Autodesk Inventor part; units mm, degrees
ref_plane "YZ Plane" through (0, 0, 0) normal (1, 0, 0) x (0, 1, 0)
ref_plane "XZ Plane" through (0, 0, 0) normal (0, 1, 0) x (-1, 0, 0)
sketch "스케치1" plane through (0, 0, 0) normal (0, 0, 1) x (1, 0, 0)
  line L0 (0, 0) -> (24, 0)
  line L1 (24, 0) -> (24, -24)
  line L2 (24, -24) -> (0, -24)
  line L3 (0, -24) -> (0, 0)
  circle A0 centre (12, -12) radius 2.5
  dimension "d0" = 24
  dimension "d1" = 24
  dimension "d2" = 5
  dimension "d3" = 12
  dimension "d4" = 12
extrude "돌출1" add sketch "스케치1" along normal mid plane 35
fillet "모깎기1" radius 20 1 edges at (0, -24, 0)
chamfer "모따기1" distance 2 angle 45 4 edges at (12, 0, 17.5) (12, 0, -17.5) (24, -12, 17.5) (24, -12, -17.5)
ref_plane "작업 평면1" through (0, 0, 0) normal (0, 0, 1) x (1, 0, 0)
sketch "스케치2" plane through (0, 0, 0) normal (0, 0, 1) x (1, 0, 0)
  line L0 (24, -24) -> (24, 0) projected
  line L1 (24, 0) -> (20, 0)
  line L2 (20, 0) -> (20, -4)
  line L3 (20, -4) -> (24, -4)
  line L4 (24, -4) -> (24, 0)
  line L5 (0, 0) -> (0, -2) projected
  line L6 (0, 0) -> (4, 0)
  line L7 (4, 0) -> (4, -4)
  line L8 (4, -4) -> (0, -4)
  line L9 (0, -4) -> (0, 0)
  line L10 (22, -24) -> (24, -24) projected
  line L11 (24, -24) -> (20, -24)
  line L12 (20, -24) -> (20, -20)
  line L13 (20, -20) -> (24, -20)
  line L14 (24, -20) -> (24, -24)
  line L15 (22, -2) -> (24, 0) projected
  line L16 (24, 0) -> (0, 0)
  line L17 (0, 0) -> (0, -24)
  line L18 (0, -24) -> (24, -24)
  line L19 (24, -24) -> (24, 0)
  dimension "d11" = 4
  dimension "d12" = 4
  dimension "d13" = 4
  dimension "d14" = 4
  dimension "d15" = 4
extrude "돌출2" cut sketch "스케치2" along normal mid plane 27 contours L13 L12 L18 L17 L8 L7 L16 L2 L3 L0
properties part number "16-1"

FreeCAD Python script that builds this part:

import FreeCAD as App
import Part
import Sketcher
from FreeCAD import Vector
Q = App.Units.Quantity


def edges_at(feature, points):
    """Names of the edges that pass closest to the given points."""
    edges = feature.Shape.Edges
    near = lambda p: min(range(len(edges)), key=lambda i: edges[i].distToShape(Part.Vertex(*p))[0])
    return sorted({f"Edge{near(p) + 1}" for p in points})

doc = App.newDocument("Part")
body = doc.addObject("PartDesign::Body", "Body")

sketch1 = body.newObject("Sketcher::SketchObject", "Sketch")
sketch1.AttachmentSupport = (doc.getObject("XY_Plane"), [""])
sketch1.MapMode = "FlatFace"
sketch1.addGeometry([
    Part.LineSegment(Vector(24, 0, 0), Vector(0, 0, 0)),
    Part.LineSegment(Vector(0, 0, 0), Vector(0, -24, 0)),
    Part.LineSegment(Vector(0, -24, 0), Vector(24, -24, 0)),
    Part.LineSegment(Vector(24, -24, 0), Vector(24, 0, 0)),
    Part.Circle(Vector(12, -12, 0), Vector(0, 0, 1), 2.5),
], False)
sketch1.addConstraint([
    Sketcher.Constraint("Coincident", 0, 2, 1, 1),
    Sketcher.Constraint("Coincident", 1, 2, 2, 1),
    Sketcher.Constraint("Coincident", 2, 2, 3, 1),
    Sketcher.Constraint("Coincident", 3, 2, 0, 1),
    Sketcher.Constraint("Horizontal", 0),
    Sketcher.Constraint("Vertical", 1),
    Sketcher.Constraint("Horizontal", 2),
    Sketcher.Constraint("Vertical", 3),
    Sketcher.Constraint("Coincident", 0, 2, -1, 1),
    Sketcher.Constraint("Equal", 2, 1),
    Sketcher.Constraint("Diameter", 4, Q("5 mm")),
    Sketcher.Constraint("DistanceX", 0, 2, 0, 1, Q("24 mm")),
    Sketcher.Constraint("DistanceX", -1, 1, 4, 3, Q("12 mm")),
    Sketcher.Constraint("DistanceY", 4, 3, -1, 1, Q("12 mm")),
])
pad1 = body.newObject("PartDesign::Pad", "Pad")
pad1.Profile = sketch1
pad1.Length = 35
pad1.Midplane = True
doc.recompute()

fillet = body.newObject("PartDesign::Fillet", "Fillet")
fillet.Base = (pad1, edges_at(pad1, [(0, -24, 0)]))
fillet.Radius = 20
doc.recompute()

chamfer = body.newObject("PartDesign::Chamfer", "Chamfer")
chamfer.Base = (fillet, edges_at(fillet, [
    (12, 0, 17.5),
    (12, 0, -17.5),
    (24, -12, 17.5),
    (24, -12, -17.5),
]))
chamfer.Size = 2

sketch2 = body.newObject("Sketcher::SketchObject", "Sketch001")
sketch2.AttachmentSupport = (doc.getObject("XY_Plane"), [""])
sketch2.MapMode = "FlatFace"
sketch2.addGeometry([
    Part.LineSegment(Vector(20, -20, 0), Vector(24, -20, 0)),
    Part.LineSegment(Vector(24, -20, 0), Vector(24, -4, 0)),
    Part.LineSegment(Vector(24, -4, 0), Vector(20, -4, 0)),
    Part.LineSegment(Vector(20, -4, 0), Vector(20, 0, 0)),
    Part.LineSegment(Vector(20, 0, 0), Vector(4, 0, 0)),
    Part.LineSegment(Vector(4, 0, 0), Vector(4, -4, 0)),
    Part.LineSegment(Vector(4, -4, 0), Vector(0, -4, 0)),
    Part.LineSegment(Vector(0, -4, 0), Vector(0, -24, 0)),
    Part.LineSegment(Vector(0, -24, 0), Vector(20, -24, 0)),
    Part.LineSegment(Vector(20, -24, 0), Vector(20, -20, 0)),
], False)
sketch2.addConstraint([
    Sketcher.Constraint("Coincident", 0, 2, 1, 1),
    Sketcher.Constraint("Coincident", 1, 2, 2, 1),
    Sketcher.Constraint("Coincident", 2, 2, 3, 1),
    Sketcher.Constraint("Coincident", 3, 2, 4, 1),
    Sketcher.Constraint("Coincident", 4, 2, 5, 1),
    Sketcher.Constraint("Coincident", 5, 2, 6, 1),
    Sketcher.Constraint("Coincident", 6, 2, 7, 1),
    Sketcher.Constraint("Coincident", 7, 2, 8, 1),
    Sketcher.Constraint("Coincident", 8, 2, 9, 1),
    Sketcher.Constraint("Coincident", 9, 2, 0, 1),
    Sketcher.Constraint("Horizontal", 0),
    Sketcher.Constraint("Vertical", 1),
    Sketcher.Constraint("Horizontal", 2),
    Sketcher.Constraint("Vertical", 3),
    Sketcher.Constraint("Horizontal", 4),
    Sketcher.Constraint("Vertical", 5),
    Sketcher.Constraint("Horizontal", 6),
    Sketcher.Constraint("Vertical", 7),
    Sketcher.Constraint("Horizontal", 8),
    Sketcher.Constraint("Vertical", 9),
    Sketcher.Constraint("PointOnObject", 3, 2, -1),
    Sketcher.Constraint("PointOnObject", 6, 2, -2),
    Sketcher.Constraint("Horizontal", 2, 2, 5, 2),
    Sketcher.Constraint("Vertical", 3, 2, 8, 2),
    Sketcher.Constraint("Equal", 2, 6),
    Sketcher.Constraint("Equal", 4, 1),
    Sketcher.Constraint("Equal", 6, 3),
    Sketcher.Constraint("Equal", 8, 7),
    Sketcher.Constraint("DistanceX", 0, 1, 0, 2, Q("4 mm")),
    Sketcher.Constraint("DistanceX", 4, 2, 4, 1, Q("16 mm")),
])
pocket1 = body.newObject("PartDesign::Pocket", "Pocket")
pocket1.Profile = sketch2
pocket1.Length = 27
pocket1.Midplane = True

doc.recompute()
